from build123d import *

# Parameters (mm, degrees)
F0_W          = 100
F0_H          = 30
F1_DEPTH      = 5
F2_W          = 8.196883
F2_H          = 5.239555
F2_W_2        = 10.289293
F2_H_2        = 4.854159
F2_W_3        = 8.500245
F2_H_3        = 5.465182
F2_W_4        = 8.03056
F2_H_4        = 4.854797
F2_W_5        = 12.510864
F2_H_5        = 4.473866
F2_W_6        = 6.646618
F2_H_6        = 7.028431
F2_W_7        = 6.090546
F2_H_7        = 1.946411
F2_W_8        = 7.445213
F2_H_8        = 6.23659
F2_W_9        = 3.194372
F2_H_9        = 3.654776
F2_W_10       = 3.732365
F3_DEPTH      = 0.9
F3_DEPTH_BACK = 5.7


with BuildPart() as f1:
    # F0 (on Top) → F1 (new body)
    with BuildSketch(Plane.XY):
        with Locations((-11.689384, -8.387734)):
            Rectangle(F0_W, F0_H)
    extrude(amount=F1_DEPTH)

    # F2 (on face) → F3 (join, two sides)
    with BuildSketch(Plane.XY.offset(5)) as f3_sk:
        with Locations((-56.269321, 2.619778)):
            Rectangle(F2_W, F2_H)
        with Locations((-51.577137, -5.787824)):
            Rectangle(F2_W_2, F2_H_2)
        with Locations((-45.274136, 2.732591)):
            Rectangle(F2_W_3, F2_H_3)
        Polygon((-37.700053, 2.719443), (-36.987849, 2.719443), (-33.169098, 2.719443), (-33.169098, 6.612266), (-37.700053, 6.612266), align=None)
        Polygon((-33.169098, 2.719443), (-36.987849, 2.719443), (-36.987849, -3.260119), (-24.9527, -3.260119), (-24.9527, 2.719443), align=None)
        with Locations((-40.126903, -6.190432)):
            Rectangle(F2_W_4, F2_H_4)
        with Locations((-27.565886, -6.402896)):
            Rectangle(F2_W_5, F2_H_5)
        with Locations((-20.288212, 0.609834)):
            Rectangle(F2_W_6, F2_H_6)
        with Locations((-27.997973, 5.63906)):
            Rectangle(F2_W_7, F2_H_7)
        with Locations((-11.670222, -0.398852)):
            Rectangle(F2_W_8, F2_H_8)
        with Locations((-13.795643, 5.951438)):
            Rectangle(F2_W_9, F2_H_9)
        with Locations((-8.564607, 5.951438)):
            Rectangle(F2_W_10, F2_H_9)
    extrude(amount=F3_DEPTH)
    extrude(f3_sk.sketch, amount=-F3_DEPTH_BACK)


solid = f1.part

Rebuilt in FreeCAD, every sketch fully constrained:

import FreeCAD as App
import Part
import Sketcher

V = App.Vector


def add_polygon(sketch, points):
    """Adds a closed chain of lines whose ends are joined by coincident constraints."""
    first, n = sketch.GeometryCount, len(points)
    for a, b in zip(points, points[1:] + points[:1]):
        sketch.addGeometry(Part.LineSegment(App.Vector(*a, 0), App.Vector(*b, 0)), False)
    for i in range(n):
        sketch.addConstraint(Sketcher.Constraint("Coincident", first + i, 2, first + (i + 1) % n, 1))

doc = App.newDocument("Part")
body = doc.addObject("PartDesign::Body", "Body")

# Sketch on XY plane
sketch1 = doc.addObject("Sketcher::SketchObject", "Sketch")
body.addObject(sketch1)
sketch1.AttachmentSupport = (doc.XY_Plane, [""])
sketch1.MapMode = "FlatFace"
add_polygon(sketch1, [(-61.689384, 6.612266), (-61.689384, -23.387734), (38.310616, -23.387734), (38.310616, 6.612266)])  # lines 0-3
sketch1.addConstraint([
    Sketcher.Constraint("Vertical", 0),
    Sketcher.Constraint("Horizontal", 1),
    Sketcher.Constraint("Vertical", 2),
    Sketcher.Constraint("Horizontal", 3),
    Sketcher.Constraint("DistanceX", 1, 1, 1, 2, 100.0),
    Sketcher.Constraint("DistanceY", 0, 2, 0, 1, 30.0),
    Sketcher.Constraint("DistanceX", 0, 2, -1, 1, 61.689384),
    Sketcher.Constraint("DistanceY", 0, 2, -1, 1, 23.387734),
])
pad1 = doc.addObject("PartDesign::Pad", "Pad")
body.addObject(pad1)
pad1.Profile = sketch1
pad1.Length = 5

# Sketch on XY plane
sketch2 = doc.addObject("Sketcher::SketchObject", "Sketch001")
body.addObject(sketch2)
sketch2.AttachmentSupport = (doc.XY_Plane, [""])
sketch2.MapMode = "FlatFace"
sketch2.AttachmentOffset = App.Placement(V(0, 0, 5), App.Rotation())
add_polygon(sketch2, [(-60.367762, 5.239555), (-60.367762, 0), (-52.170879, 0), (-52.170879, 5.239555)])  # lines 0-3
add_polygon(sketch2, [(-56.721784, -3.360745), (-56.721784, -8.214904), (-46.432491, -8.214904), (-46.432491, -3.360745)])  # lines 4-7
add_polygon(sketch2, [(-49.524259, 5.465182), (-49.524259, 0), (-41.024014, 0), (-41.024014, 5.465182)])  # lines 8-11
add_polygon(sketch2, [(-37.700053, 2.719443), (-36.987849, 2.719443), (-36.987849, -3.260119), (-24.9527, -3.260119), (-24.9527, 2.719443), (-33.169098, 2.719443), (-33.169098, 6.612266), (-37.700053, 6.612266)])  # lines 12-19
add_polygon(sketch2, [(-44.142183, -3.763034), (-44.142183, -8.617831), (-36.111623, -8.617831), (-36.111623, -3.763034)])  # lines 20-23
add_polygon(sketch2, [(-33.821318, -4.165963), (-33.821318, -8.639829), (-21.310454, -8.639829), (-21.310454, -4.165963)])  # lines 24-27
add_polygon(sketch2, [(-23.611521, 4.124049), (-23.611521, -2.904381), (-16.964903, -2.904381), (-16.964903, 4.124049)])  # lines 28-31
add_polygon(sketch2, [(-31.043246, 6.612266), (-31.043246, 4.665855), (-24.9527, 4.665855), (-24.9527, 6.612266)])  # lines 32-35
add_polygon(sketch2, [(-15.392829, 2.719443), (-15.392829, -3.517147), (-7.947616, -3.517147), (-7.947616, 2.719443)])  # lines 36-39
add_polygon(sketch2, [(-15.392829, 7.778826), (-15.392829, 4.12405), (-12.198457, 4.12405), (-12.198457, 7.778826)])  # lines 40-43
add_polygon(sketch2, [(-10.430789, 7.778826), (-10.430789, 4.12405), (-6.698424, 4.12405), (-6.698424, 7.778826)])  # lines 44-47
sketch2.addConstraint([
    Sketcher.Constraint("Vertical", 0),
    Sketcher.Constraint("Horizontal", 1),
    Sketcher.Constraint("Vertical", 2),
    Sketcher.Constraint("Horizontal", 3),
    Sketcher.Constraint("Vertical", 4),
    Sketcher.Constraint("Horizontal", 5),
    Sketcher.Constraint("Vertical", 6),
    Sketcher.Constraint("Horizontal", 7),
    Sketcher.Constraint("Vertical", 8),
    Sketcher.Constraint("Horizontal", 9),
    Sketcher.Constraint("Vertical", 10),
    Sketcher.Constraint("Horizontal", 11),
    Sketcher.Constraint("Horizontal", 12),
    Sketcher.Constraint("Vertical", 13),
    Sketcher.Constraint("Horizontal", 14),
    Sketcher.Constraint("Vertical", 15),
    Sketcher.Constraint("Horizontal", 16),
    Sketcher.Constraint("Vertical", 17),
    Sketcher.Constraint("Horizontal", 18),
    Sketcher.Constraint("Vertical", 19),
    Sketcher.Constraint("Vertical", 20),
    Sketcher.Constraint("Horizontal", 21),
    Sketcher.Constraint("Vertical", 22),
    Sketcher.Constraint("Horizontal", 23),
    Sketcher.Constraint("Vertical", 24),
    Sketcher.Constraint("Horizontal", 25),
    Sketcher.Constraint("Vertical", 26),
    Sketcher.Constraint("Horizontal", 27),
    Sketcher.Constraint("Vertical", 28),
    Sketcher.Constraint("Horizontal", 29),
    Sketcher.Constraint("Vertical", 30),
    Sketcher.Constraint("Horizontal", 31),
    Sketcher.Constraint("Vertical", 32),
    Sketcher.Constraint("Horizontal", 33),
    Sketcher.Constraint("Vertical", 34),
    Sketcher.Constraint("Horizontal", 35),
    Sketcher.Constraint("Vertical", 36),
    Sketcher.Constraint("Horizontal", 37),
    Sketcher.Constraint("Vertical", 38),
    Sketcher.Constraint("Horizontal", 39),
    Sketcher.Constraint("Vertical", 40),
    Sketcher.Constraint("Horizontal", 41),
    Sketcher.Constraint("Vertical", 42),
    Sketcher.Constraint("Horizontal", 43),
    Sketcher.Constraint("Vertical", 44),
    Sketcher.Constraint("Horizontal", 45),
    Sketcher.Constraint("Vertical", 46),
    Sketcher.Constraint("Horizontal", 47),
    Sketcher.Constraint("PointOnObject", 0, 2, -1),
    Sketcher.Constraint("PointOnObject", 8, 2, -1),
    Sketcher.Constraint("Horizontal", 12, 2, 15, 2),
    Sketcher.Constraint("Horizontal", 18, 2, 34, 2),
    Sketcher.Constraint("Horizontal", 19, 2, 38, 2),
    Sketcher.Constraint("Horizontal", 31, 2, 40, 2),
    Sketcher.Constraint("Horizontal", 41, 2, 44, 2),
    Sketcher.Constraint("Horizontal", 43, 2, 46, 2),
    Sketcher.Constraint("Vertical", 15, 2, 33, 2),
    Sketcher.Constraint("Vertical", 39, 2, 40, 2),
    Sketcher.Constraint("DistanceY", 24, 2, 21, 2, 0.021999),
    Sketcher.Constraint("DistanceX", 14, 1, 14, 2, 12.035149),
    Sketcher.Constraint("DistanceX", 21, 1, 21, 2, 8.03056),
    Sketcher.Constraint("DistanceY", 4, 2, 4, 1, 4.854159),
    Sketcher.Constraint("DistanceY", 13, 2, 13, 1, 5.979562),
    Sketcher.Constraint("DistanceY", 28, 2, 28, 1, 7.028431),
    Sketcher.Constraint("DistanceY", 32, 2, 32, 1, 1.946411),
    Sketcher.Constraint("DistanceY", 36, 2, 36, 1, 6.23659),
    Sketcher.Constraint("DistanceX", 14, 2, -1, 1, 24.9527),
    Sketcher.Constraint("DistanceY", 6, 2, 2, 2, 8.6003),
    Sketcher.Constraint("DistanceY", 13, 2, 10, 2, 8.725301),
    Sketcher.Constraint("DistanceX", 1, 1, 1, 2, 8.196883),
    Sketcher.Constraint("DistanceX", 5, 1, 5, 2, 10.289293),
    Sketcher.Constraint("DistanceX", 9, 1, 9, 2, 8.500245),
    Sketcher.Constraint("DistanceX", 12, 1, 12, 2, 0.712204),
    Sketcher.Constraint("DistanceX", 16, 2, 16, 1, 8.216398),
    Sketcher.Constraint("DistanceX", 25, 1, 25, 2, 12.510864),
    Sketcher.Constraint("DistanceX", 29, 1, 29, 2, 6.646618),
    Sketcher.Constraint("DistanceX", 33, 1, 33, 2, 6.090546),
    Sketcher.Constraint("DistanceX", 37, 1, 37, 2, 7.445213),
    Sketcher.Constraint("DistanceX", 41, 1, 41, 2, 3.194372),
    Sketcher.Constraint("DistanceX", 45, 1, 45, 2, 3.732365),
    Sketcher.Constraint("DistanceY", 0, 2, 0, 1, 5.239555),
    Sketcher.Constraint("DistanceY", 8, 2, 8, 1, 5.465182),
    Sketcher.Constraint("DistanceY", 17, 1, 17, 2, 3.892823),
    Sketcher.Constraint("DistanceY", 20, 2, 20, 1, 4.854797),
    Sketcher.Constraint("DistanceY", 24, 2, 24, 1, 4.473866),
    Sketcher.Constraint("DistanceY", 40, 2, 40, 1, 3.654776),
    Sketcher.Constraint("DistanceX", 1, 2, -1, 1, 52.170879),
    Sketcher.Constraint("DistanceX", 5, 2, -1, 1, 46.432491),
    Sketcher.Constraint("DistanceX", 8, 2, -1, 1, 49.524259),
    Sketcher.Constraint("DistanceY", 20, 2, -1, 1, 8.617831),
    Sketcher.Constraint("DistanceX", 28, 2, -1, 1, 23.611521),
    Sketcher.Constraint("DistanceY", 28, 2, -1, 1, 2.904381),
    Sketcher.Constraint("DistanceX", 36, 2, -1, 1, 15.392829),
    Sketcher.Constraint("DistanceX", 44, 2, -1, 1, 10.430789),
    Sketcher.Constraint("DistanceX", 20, 2, 9, 2, 3.11817),
    Sketcher.Constraint("DistanceX", 13, 2, 24, 2, 3.166531),
])
pad2 = doc.addObject("PartDesign::Pad", "Pad001")
body.addObject(pad2)
pad2.Profile = sketch2
pad2.Type = "TwoLengths"
pad2.Length = 0.9
pad2.Length2 = 5.7

doc.recompute()
